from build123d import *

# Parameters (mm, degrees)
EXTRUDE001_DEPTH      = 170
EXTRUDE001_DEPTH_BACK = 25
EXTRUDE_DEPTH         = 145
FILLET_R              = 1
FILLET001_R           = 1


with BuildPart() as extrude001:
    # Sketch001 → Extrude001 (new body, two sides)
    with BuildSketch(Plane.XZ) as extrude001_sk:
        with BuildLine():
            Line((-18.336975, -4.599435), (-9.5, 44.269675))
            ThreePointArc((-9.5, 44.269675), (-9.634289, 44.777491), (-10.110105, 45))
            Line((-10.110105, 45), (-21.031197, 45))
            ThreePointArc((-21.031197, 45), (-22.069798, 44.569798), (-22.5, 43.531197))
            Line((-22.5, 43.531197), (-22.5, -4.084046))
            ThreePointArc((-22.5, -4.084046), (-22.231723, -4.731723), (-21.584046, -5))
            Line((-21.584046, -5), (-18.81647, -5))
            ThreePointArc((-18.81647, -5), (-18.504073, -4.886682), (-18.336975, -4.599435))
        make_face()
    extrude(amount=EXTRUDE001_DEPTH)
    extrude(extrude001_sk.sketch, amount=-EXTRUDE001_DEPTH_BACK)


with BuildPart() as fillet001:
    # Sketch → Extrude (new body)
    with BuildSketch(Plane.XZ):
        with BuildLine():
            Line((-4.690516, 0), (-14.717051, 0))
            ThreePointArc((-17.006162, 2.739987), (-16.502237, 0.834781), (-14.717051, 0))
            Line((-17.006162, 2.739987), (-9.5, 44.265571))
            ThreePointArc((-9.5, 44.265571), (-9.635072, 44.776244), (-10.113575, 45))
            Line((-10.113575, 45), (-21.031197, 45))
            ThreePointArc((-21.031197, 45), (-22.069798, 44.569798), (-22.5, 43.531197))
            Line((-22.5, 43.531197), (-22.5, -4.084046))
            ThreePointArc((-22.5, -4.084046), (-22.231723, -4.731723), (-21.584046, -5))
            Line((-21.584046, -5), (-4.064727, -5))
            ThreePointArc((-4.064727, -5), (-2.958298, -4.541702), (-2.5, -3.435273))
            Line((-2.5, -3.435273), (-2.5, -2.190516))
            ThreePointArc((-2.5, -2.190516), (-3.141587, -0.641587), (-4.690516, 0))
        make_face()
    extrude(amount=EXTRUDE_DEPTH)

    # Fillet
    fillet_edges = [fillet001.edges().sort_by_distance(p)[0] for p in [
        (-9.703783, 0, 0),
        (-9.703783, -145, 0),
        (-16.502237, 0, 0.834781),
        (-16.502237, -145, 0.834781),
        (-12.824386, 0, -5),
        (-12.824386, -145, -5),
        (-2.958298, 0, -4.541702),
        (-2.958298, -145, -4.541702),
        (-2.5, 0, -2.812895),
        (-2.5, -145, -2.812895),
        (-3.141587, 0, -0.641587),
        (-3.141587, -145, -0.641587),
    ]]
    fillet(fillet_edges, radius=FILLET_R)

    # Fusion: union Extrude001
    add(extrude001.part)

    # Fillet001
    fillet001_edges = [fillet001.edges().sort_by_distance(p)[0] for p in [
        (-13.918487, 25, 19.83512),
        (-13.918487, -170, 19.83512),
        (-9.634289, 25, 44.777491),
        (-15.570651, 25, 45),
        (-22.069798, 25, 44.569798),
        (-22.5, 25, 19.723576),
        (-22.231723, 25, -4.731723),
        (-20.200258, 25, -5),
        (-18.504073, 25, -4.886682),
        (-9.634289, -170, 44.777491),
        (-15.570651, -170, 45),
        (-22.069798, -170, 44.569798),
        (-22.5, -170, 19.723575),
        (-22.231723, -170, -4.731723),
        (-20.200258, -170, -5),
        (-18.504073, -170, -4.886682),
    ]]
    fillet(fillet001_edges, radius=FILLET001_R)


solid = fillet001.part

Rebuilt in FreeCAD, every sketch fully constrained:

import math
import FreeCAD as App
import Part
import Sketcher
Q = App.Units.Quantity


def edges_at(feature, points):
    """Names of the edges that pass closest to the given points."""
    edges = feature.Shape.Edges
    near = lambda p: min(range(len(edges)), key=lambda i: edges[i].distToShape(Part.Vertex(*p))[0])
    return sorted({f"Edge{near(p) + 1}" for p in points})

doc = App.newDocument("Part")
body = doc.addObject("PartDesign::Body", "Body")

sketch1 = doc.addObject("Sketcher::SketchObject", "Sketch")
body.addObject(sketch1)
sketch1.AttachmentSupport = (doc.XZ_Plane, [""])
sketch1.MapMode = "FlatFace"
sketch1.addGeometry(Part.LineSegment(App.Vector(-18.34, -4.6, 0), App.Vector(-9.5, 44.27, 0)), False)
sketch1.addGeometry(Part.ArcOfCircle(Part.Circle(App.Vector(-10.11, 44.38, 0), App.Vector(0, 0, 1), 0.62), math.radians(-10), math.radians(90)), False)
sketch1.addGeometry(Part.LineSegment(App.Vector(-10.11, 45, 0), App.Vector(-21.03, 45, 0)), False)
sketch1.addGeometry(Part.ArcOfCircle(Part.Circle(App.Vector(-21.03, 43.53, 0), App.Vector(0, 0, 1), 1.47), math.radians(90), math.radians(180)), False)
sketch1.addGeometry(Part.LineSegment(App.Vector(-22.5, 43.53, 0), App.Vector(-22.5, -4.08, 0)), False)
sketch1.addGeometry(Part.ArcOfCircle(Part.Circle(App.Vector(-21.58, -4.08, 0), App.Vector(0, 0, 1), 0.92), math.radians(-180), math.radians(-90)), False)
sketch1.addGeometry(Part.LineSegment(App.Vector(-21.58, -5, 0), App.Vector(-18.82, -5, 0)), False)
sketch1.addGeometry(Part.ArcOfCircle(Part.Circle(App.Vector(-18.82, -4.51, 0), App.Vector(0, 0, 1), 0.49), math.radians(-90), math.radians(-10)), False)
sketch1.addConstraint(Sketcher.Constraint("Tangent", 0, 2, 1, 1))
sketch1.addConstraint(Sketcher.Constraint("Tangent", 1, 2, 2, 1))
sketch1.addConstraint(Sketcher.Constraint("Tangent", 2, 2, 3, 1))
sketch1.addConstraint(Sketcher.Constraint("Tangent", 3, 2, 4, 1))
sketch1.addConstraint(Sketcher.Constraint("Tangent", 4, 2, 5, 1))
sketch1.addConstraint(Sketcher.Constraint("Tangent", 5, 2, 6, 1))
sketch1.addConstraint(Sketcher.Constraint("Coincident", 6, 2, 7, 1))
sketch1.addConstraint(Sketcher.Constraint("Tangent", 7, 2, 0, 1))
sketch1.addConstraint(Sketcher.Constraint("Horizontal", 2))
sketch1.addConstraint(Sketcher.Constraint("Vertical", 4))
sketch1.addConstraint(Sketcher.Constraint("Horizontal", 6))
sketch1.addConstraint(Sketcher.Constraint("Vertical", 7, 3, 6, 2))
sketch1.addConstraint(Sketcher.Constraint("Radius", 1, 0.62))
sketch1.addConstraint(Sketcher.Constraint("DistanceY", -1, 1, 1, 2, 45.0))
sketch1.addConstraint(Sketcher.Constraint("DistanceY", 5, 2, -1, 1, 5.0))
sketch1.addConstraint(Sketcher.Constraint("DistanceX", 3, 2, 0, 2, 13.0))
sketch1.addConstraint(Sketcher.Constraint("DistanceX", 0, 2, -1, 1, 9.5))
sketch1.addConstraint(Sketcher.Constraint("Angle", 0, Q("79.75 deg")))
sketch1.addConstraint(Sketcher.Constraint("Radius", 3, 1.468802))
sketch1.addConstraint(Sketcher.Constraint("Radius", 5, 0.915955))
sketch1.addConstraint(Sketcher.Constraint("Radius", 7, 0.487273))
pad1 = doc.addObject("PartDesign::Pad", "Pad")
body.addObject(pad1)
pad1.Profile = sketch1
pad1.Type = "TwoLengths"
pad1.Length = 170
pad1.Length2 = 25
body2 = doc.addObject("PartDesign::Body", "Body001")

sketch2 = doc.addObject("Sketcher::SketchObject", "Sketch001")
body2.addObject(sketch2)
sketch2.AttachmentSupport = (doc.getObject("XZ_Plane001"), [""])
sketch2.MapMode = "FlatFace"
sketch2.addGeometry(Part.LineSegment(App.Vector(-4.7, 0, 0), App.Vector(-14.7, 0, 0)), False)
sketch2.addGeometry(Part.ArcOfCircle(Part.Circle(App.Vector(-14.7, 2.3, 0), App.Vector(0, 0, 1), 2.3), math.radians(170), math.radians(270)), False)
sketch2.addGeometry(Part.LineSegment(App.Vector(-17, 2.7, 0), App.Vector(-9.5, 44.3, 0)), False)
sketch2.addGeometry(Part.ArcOfCircle(Part.Circle(App.Vector(-10.1, 44.4, 0), App.Vector(0, 0, 1), 0.6), math.radians(-10), math.radians(90)), False)
sketch2.addGeometry(Part.LineSegment(App.Vector(-10.1, 45, 0), App.Vector(-21, 45, 0)), False)
sketch2.addGeometry(Part.ArcOfCircle(Part.Circle(App.Vector(-21, 43.5, 0), App.Vector(0, 0, 1), 1.5), math.radians(90), math.radians(180)), False)
sketch2.addGeometry(Part.LineSegment(App.Vector(-22.5, 43.5, 0), App.Vector(-22.5, -4.1, 0)), False)
sketch2.addGeometry(Part.ArcOfCircle(Part.Circle(App.Vector(-21.6, -4.1, 0), App.Vector(0, 0, 1), 0.9), math.radians(-180), math.radians(-90)), False)
sketch2.addGeometry(Part.LineSegment(App.Vector(-21.6, -5, 0), App.Vector(-4.1, -5, 0)), False)
sketch2.addGeometry(Part.ArcOfCircle(Part.Circle(App.Vector(-4.1, -3.4, 0), App.Vector(0, 0, 1), 1.6), math.radians(-90), math.radians(0)), False)
sketch2.addGeometry(Part.LineSegment(App.Vector(-2.5, -3.4, 0), App.Vector(-2.5, -2.2, 0)), False)
sketch2.addGeometry(Part.ArcOfCircle(Part.Circle(App.Vector(-4.7, -2.2, 0), App.Vector(0, 0, 1), 2.2), math.radians(0), math.radians(90)), False)
sketch2.addConstraint(Sketcher.Constraint("Tangent", 0, 2, 1, 2))
sketch2.addConstraint(Sketcher.Constraint("Tangent", 1, 1, 2, 1))
sketch2.addConstraint(Sketcher.Constraint("Tangent", 2, 2, 3, 1))
sketch2.addConstraint(Sketcher.Constraint("Tangent", 3, 2, 4, 1))
sketch2.addConstraint(Sketcher.Constraint("Tangent", 4, 2, 5, 1))
sketch2.addConstraint(Sketcher.Constraint("Tangent", 5, 2, 6, 1))
sketch2.addConstraint(Sketcher.Constraint("Tangent", 6, 2, 7, 1))
sketch2.addConstraint(Sketcher.Constraint("Tangent", 7, 2, 8, 1))
sketch2.addConstraint(Sketcher.Constraint("Tangent", 8, 2, 9, 1))
sketch2.addConstraint(Sketcher.Constraint("Tangent", 9, 2, 10, 1))
sketch2.addConstraint(Sketcher.Constraint("Tangent", 10, 2, 11, 1))
sketch2.addConstraint(Sketcher.Constraint("Tangent", 11, 2, 0, 1))
sketch2.addConstraint(Sketcher.Constraint("Horizontal", 0))
sketch2.addConstraint(Sketcher.Constraint("Horizontal", 4))
sketch2.addConstraint(Sketcher.Constraint("Vertical", 6))
sketch2.addConstraint(Sketcher.Constraint("Horizontal", 8))
sketch2.addConstraint(Sketcher.Constraint("Vertical", 10))
sketch2.addConstraint(Sketcher.Constraint("PointOnObject", 0, 2, -1))
sketch2.addConstraint(Sketcher.Constraint("DistanceY", -1, 1, 3, 2, 45.0))
sketch2.addConstraint(Sketcher.Constraint("DistanceY", 7, 2, -1, 1, 5.0))
sketch2.addConstraint(Sketcher.Constraint("DistanceX", 5, 2, 2, 2, 13.0))
sketch2.addConstraint(Sketcher.Constraint("DistanceX", 2, 2, -1, 1, 9.5))
sketch2.addConstraint(Sketcher.Constraint("DistanceX", 9, 2, -1, 1, 2.5))
sketch2.addConstraint(Sketcher.Constraint("Radius", 5, 1.468802))
sketch2.addConstraint(Sketcher.Constraint("Radius", 3, 0.623519))
sketch2.addConstraint(Sketcher.Constraint("Radius", 1, 2.326208))
sketch2.addConstraint(Sketcher.Constraint("Radius", 7, 0.915955))
sketch2.addConstraint(Sketcher.Constraint("Radius", 9, 1.564727))
sketch2.addConstraint(Sketcher.Constraint("Radius", 11, 2.190515))
sketch2.addConstraint(Sketcher.Constraint("DistanceX", 0, 2, 0, 1, 10.026535))
pad2 = doc.addObject("PartDesign::Pad", "Pad001")
body2.addObject(pad2)
pad2.Profile = sketch2
pad2.Length = 145
doc.recompute()

fillet = doc.addObject("PartDesign::Fillet", "Fillet")
body2.addObject(fillet)
fillet.Base = (pad2, edges_at(pad2, [
    (-9.704, 0, 0),
    (-9.704, -145, 0),
    (-16.502, 0, 0.835),
    (-16.502, -145, 0.835),
    (-12.824, 0, -5),
    (-12.824, -145, -5),
    (-2.958, 0, -4.542),
    (-2.958, -145, -4.542),
    (-2.5, 0, -2.813),
    (-2.5, -145, -2.813),
    (-3.142, 0, -0.642),
    (-3.142, -145, -0.642),
]))
fillet.Radius = 1
doc.recompute()

boolean = doc.addObject("PartDesign::Boolean", "Boolean")
body2.addObject(boolean)
boolean.Type = "Fuse"
boolean.addObjects([body])
doc.recompute()

fillet2 = doc.addObject("PartDesign::Fillet", "Fillet001")
body2.addObject(fillet2)
fillet2.Base = (boolean, edges_at(boolean, [
    (-13.918, 25, 19.835),
    (-13.918, -170, 19.835),
    (-9.634, 25, 44.777),
    (-15.571, 25, 45),
    (-22.07, 25, 44.57),
    (-22.5, 25, 19.724),
    (-22.232, 25, -4.732),
    (-20.2, 25, -5),
    (-18.504, 25, -4.887),
    (-9.634, -170, 44.777),
    (-15.571, -170, 45),
    (-22.07, -170, 44.57),
    (-22.5, -170, 19.724),
    (-22.232, -170, -4.732),
    (-20.2, -170, -5),
    (-18.504, -170, -4.887),
]))
fillet2.Radius = 1

doc.recompute()
